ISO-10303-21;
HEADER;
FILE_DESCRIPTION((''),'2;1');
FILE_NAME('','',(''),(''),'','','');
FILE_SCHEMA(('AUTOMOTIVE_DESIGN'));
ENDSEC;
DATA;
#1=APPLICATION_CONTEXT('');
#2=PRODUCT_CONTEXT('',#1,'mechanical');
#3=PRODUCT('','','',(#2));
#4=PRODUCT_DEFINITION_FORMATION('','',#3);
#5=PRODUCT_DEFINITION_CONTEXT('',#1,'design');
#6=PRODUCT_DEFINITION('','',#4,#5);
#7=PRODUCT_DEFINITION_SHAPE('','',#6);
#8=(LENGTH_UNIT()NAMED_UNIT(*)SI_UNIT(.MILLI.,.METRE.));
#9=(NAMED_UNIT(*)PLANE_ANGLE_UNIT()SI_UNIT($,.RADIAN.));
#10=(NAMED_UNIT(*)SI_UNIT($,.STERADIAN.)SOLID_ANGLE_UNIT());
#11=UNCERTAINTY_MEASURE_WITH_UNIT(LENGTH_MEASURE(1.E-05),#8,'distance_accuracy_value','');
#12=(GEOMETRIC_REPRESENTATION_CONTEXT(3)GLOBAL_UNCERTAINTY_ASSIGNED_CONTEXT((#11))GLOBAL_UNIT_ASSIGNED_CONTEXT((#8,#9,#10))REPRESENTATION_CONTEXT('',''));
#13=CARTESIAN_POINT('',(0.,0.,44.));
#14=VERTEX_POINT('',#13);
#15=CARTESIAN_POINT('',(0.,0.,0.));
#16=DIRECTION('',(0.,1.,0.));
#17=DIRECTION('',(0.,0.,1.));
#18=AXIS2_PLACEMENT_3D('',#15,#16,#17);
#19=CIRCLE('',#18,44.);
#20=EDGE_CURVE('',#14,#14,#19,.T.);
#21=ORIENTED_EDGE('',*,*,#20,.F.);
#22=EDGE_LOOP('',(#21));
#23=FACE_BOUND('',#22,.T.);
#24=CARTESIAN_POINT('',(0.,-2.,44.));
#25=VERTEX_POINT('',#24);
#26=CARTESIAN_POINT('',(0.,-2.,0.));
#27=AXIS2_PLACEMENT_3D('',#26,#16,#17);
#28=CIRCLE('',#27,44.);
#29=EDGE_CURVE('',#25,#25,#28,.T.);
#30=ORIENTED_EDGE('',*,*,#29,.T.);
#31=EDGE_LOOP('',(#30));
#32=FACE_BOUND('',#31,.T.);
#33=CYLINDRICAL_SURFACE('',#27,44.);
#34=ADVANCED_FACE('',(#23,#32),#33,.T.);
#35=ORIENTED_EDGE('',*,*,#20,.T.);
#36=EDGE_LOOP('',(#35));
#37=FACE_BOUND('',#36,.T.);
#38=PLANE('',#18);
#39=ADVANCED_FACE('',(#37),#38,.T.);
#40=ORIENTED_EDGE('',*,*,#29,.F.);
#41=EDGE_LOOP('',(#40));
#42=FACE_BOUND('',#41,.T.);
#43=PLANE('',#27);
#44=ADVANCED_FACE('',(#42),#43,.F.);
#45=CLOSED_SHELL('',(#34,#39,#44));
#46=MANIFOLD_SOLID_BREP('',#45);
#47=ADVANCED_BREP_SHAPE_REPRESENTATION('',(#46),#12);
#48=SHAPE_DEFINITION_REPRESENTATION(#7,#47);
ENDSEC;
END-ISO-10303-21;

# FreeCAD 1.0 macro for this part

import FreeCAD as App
import Part
import Sketcher
from FreeCAD import Vector
Q = App.Units.Quantity

doc = App.newDocument("Part")
params = doc.addObject("Spreadsheet::Sheet", "Params")
for row, (alias, value) in enumerate([
    ("sketch1_diameter", "88 mm"),
    ("pad1_length", "2 mm"),
], start=1):
    params.set(f"A{row}", alias)
    params.set(f"B{row}", "=" + value)
    params.setAlias(f"B{row}", alias)

body = doc.addObject("PartDesign::Body", "Body")

# Sketch on XZ plane
sketch1 = body.newObject("Sketcher::SketchObject", "Sketch")
sketch1.AttachmentSupport = (doc.getObject("XZ_Plane"), [""])
sketch1.MapMode = "FlatFace"
sketch1.addGeometry(Part.Circle(Vector(0, 0, 0), Vector(0, 0, 1), 44), False)
sketch1.addConstraint([
    Sketcher.Constraint("Coincident", 0, 3, -1, 1),
    Sketcher.Constraint("Diameter", 0, Q("88 mm")),
])
sketch1.setExpression("Constraints[1]", "Params.sketch1_diameter")
pad1 = body.newObject("PartDesign::Pad", "Pad")
pad1.Profile = sketch1
pad1.setExpression("Length", "Params.pad1_length")

doc.recompute()
